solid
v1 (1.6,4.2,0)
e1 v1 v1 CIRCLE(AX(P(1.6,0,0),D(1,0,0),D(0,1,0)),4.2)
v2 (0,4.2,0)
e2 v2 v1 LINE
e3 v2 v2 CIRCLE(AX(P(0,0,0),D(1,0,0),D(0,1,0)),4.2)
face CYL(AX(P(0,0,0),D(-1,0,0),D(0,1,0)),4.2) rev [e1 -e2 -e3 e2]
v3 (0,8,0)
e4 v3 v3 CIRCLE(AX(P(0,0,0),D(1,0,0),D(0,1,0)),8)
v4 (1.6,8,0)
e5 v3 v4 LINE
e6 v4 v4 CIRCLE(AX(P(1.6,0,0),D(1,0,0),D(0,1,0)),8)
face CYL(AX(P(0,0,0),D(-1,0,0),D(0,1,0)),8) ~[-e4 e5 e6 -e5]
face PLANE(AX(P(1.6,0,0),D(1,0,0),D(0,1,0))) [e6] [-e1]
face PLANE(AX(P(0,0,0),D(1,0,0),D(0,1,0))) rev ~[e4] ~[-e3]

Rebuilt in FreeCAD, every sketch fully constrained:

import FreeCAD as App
import Part
import Sketcher

V = App.Vector

doc = App.newDocument("Part")
body = doc.addObject("PartDesign::Body", "Body")

# Sketch on YZ plane
sketch1 = body.newObject("Sketcher::SketchObject", "Sketch")
sketch1.AttachmentSupport = (doc.getObject("YZ_Plane"), [""])
sketch1.MapMode = "FlatFace"
sketch1.addGeometry(Part.Circle(V(0, 0, 0), V(0, 0, 1), 8), False)
sketch1.addGeometry(Part.Circle(V(0, 0, 0), V(0, 0, 1), 4.2), False)
sketch1.addConstraint(Sketcher.Constraint("Coincident", 0, 3, -1, 1))
sketch1.addConstraint(Sketcher.Constraint("Coincident", 1, 3, -1, 1))
sketch1.addConstraint(Sketcher.Constraint("Diameter", 0, 16.0))
sketch1.addConstraint(Sketcher.Constraint("Diameter", 1, 8.4))
pad1 = body.newObject("PartDesign::Pad", "Pad")
pad1.Profile = sketch1
pad1.Length = 1.6

doc.recompute()
